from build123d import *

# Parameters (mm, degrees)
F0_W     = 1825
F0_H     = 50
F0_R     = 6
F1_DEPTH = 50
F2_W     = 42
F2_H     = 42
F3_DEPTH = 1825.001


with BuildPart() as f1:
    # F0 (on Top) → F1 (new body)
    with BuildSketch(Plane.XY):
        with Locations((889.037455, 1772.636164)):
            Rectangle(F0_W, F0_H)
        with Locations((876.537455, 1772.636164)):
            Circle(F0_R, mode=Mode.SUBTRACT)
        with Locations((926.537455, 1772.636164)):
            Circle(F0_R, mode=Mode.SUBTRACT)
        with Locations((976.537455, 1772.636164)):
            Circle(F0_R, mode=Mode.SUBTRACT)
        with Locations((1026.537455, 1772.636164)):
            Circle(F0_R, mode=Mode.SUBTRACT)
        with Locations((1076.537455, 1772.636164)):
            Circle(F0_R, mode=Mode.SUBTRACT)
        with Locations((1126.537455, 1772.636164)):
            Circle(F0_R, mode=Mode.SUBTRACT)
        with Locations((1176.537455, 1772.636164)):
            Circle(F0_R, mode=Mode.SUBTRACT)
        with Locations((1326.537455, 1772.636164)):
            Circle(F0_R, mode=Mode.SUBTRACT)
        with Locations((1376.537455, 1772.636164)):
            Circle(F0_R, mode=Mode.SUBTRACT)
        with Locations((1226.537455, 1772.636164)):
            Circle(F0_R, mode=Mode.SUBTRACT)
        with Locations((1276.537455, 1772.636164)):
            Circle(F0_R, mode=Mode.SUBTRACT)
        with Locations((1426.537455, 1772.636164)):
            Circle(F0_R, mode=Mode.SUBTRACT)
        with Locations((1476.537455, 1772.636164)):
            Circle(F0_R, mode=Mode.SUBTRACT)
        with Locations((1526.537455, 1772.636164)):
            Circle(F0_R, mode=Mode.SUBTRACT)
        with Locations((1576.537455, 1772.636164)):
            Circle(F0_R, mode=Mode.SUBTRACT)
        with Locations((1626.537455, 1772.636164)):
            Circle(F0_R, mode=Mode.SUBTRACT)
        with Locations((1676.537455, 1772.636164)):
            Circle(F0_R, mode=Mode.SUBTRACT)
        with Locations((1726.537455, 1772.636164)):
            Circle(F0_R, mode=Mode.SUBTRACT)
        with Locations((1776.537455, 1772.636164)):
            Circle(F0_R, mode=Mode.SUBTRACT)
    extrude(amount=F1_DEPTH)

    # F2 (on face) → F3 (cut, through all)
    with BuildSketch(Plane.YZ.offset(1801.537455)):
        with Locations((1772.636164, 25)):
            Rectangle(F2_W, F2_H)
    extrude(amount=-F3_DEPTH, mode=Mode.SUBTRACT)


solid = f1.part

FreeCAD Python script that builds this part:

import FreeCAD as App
import Part
import Sketcher

doc = App.newDocument("Part")
params = doc.addObject("Spreadsheet::Sheet", "Params")
for row, (alias, value) in enumerate([
    ("sketch1_diameter", "12 mm"),
    ("sketch1_width", "1825 mm"),
    ("sketch1_height", "50 mm"),
    ("pad1_length", "50 mm"),
    ("sketch2_width", "42 mm"),
], start=1):
    params.set(f"A{row}", alias)
    params.set(f"B{row}", "=" + value)
    params.setAlias(f"B{row}", alias)

body = doc.addObject("PartDesign::Body", "Body")

sketch1 = doc.addObject("Sketcher::SketchObject", "Sketch")
body.addObject(sketch1)
sketch1.AttachmentSupport = (doc.XY_Plane, [""])
sketch1.MapMode = "FlatFace"
sketch1.addGeometry([
    Part.LineSegment(App.Vector(-23, 1798, 0), App.Vector(-23, 1748, 0)),
    Part.LineSegment(App.Vector(-23, 1748, 0), App.Vector(1802, 1748, 0)),
    Part.LineSegment(App.Vector(1802, 1748, 0), App.Vector(1802, 1798, 0)),
    Part.LineSegment(App.Vector(1802, 1798, 0), App.Vector(-23, 1798, 0)),
    Part.Circle(App.Vector(877, 1773, 0), App.Vector(0, 0, 1), 6),
    Part.Circle(App.Vector(927, 1773, 0), App.Vector(0, 0, 1), 6),
    Part.Circle(App.Vector(977, 1773, 0), App.Vector(0, 0, 1), 6),
    Part.Circle(App.Vector(1027, 1773, 0), App.Vector(0, 0, 1), 6),
    Part.Circle(App.Vector(1077, 1773, 0), App.Vector(0, 0, 1), 6),
    Part.Circle(App.Vector(1127, 1773, 0), App.Vector(0, 0, 1), 6),
    Part.Circle(App.Vector(1177, 1773, 0), App.Vector(0, 0, 1), 6),
    Part.Circle(App.Vector(1227, 1773, 0), App.Vector(0, 0, 1), 6),
    Part.Circle(App.Vector(1277, 1773, 0), App.Vector(0, 0, 1), 6),
    Part.Circle(App.Vector(1327, 1773, 0), App.Vector(0, 0, 1), 6),
    Part.Circle(App.Vector(1377, 1773, 0), App.Vector(0, 0, 1), 6),
    Part.Circle(App.Vector(1427, 1773, 0), App.Vector(0, 0, 1), 6),
    Part.Circle(App.Vector(1477, 1773, 0), App.Vector(0, 0, 1), 6),
    Part.Circle(App.Vector(1527, 1773, 0), App.Vector(0, 0, 1), 6),
    Part.Circle(App.Vector(1577, 1773, 0), App.Vector(0, 0, 1), 6),
    Part.Circle(App.Vector(1627, 1773, 0), App.Vector(0, 0, 1), 6),
    Part.Circle(App.Vector(1677, 1773, 0), App.Vector(0, 0, 1), 6),
    Part.Circle(App.Vector(1727, 1773, 0), App.Vector(0, 0, 1), 6),
    Part.Circle(App.Vector(1777, 1773, 0), App.Vector(0, 0, 1), 6),
], False)
sketch1.addConstraint([
    Sketcher.Constraint("Coincident", 0, 2, 1, 1),
    Sketcher.Constraint("Coincident", 1, 2, 2, 1),
    Sketcher.Constraint("Coincident", 2, 2, 3, 1),
    Sketcher.Constraint("Coincident", 3, 2, 0, 1),
    Sketcher.Constraint("Vertical", 0),
    Sketcher.Constraint("Horizontal", 1),
    Sketcher.Constraint("Vertical", 2),
    Sketcher.Constraint("Horizontal", 3),
    Sketcher.Constraint("Equal", 4, 5),
    Sketcher.Constraint("Equal", 5, 6),
    Sketcher.Constraint("Equal", 6, 7),
    Sketcher.Constraint("Equal", 7, 8),
    Sketcher.Constraint("Equal", 8, 9),
    Sketcher.Constraint("Equal", 9, 10),
    Sketcher.Constraint("Equal", 10, 11),
    Sketcher.Constraint("Equal", 11, 12),
    Sketcher.Constraint("Equal", 12, 13),
    Sketcher.Constraint("Equal", 13, 14),
    Sketcher.Constraint("Equal", 14, 15),
    Sketcher.Constraint("Equal", 15, 16),
    Sketcher.Constraint("Equal", 16, 17),
    Sketcher.Constraint("Equal", 17, 18),
    Sketcher.Constraint("Equal", 18, 19),
    Sketcher.Constraint("Equal", 19, 20),
    Sketcher.Constraint("Equal", 20, 21),
    Sketcher.Constraint("Equal", 21, 22),
    Sketcher.Constraint("Horizontal", 4, 3, 5, 3),
    Sketcher.Constraint("Horizontal", 5, 3, 6, 3),
    Sketcher.Constraint("Horizontal", 6, 3, 7, 3),
    Sketcher.Constraint("Horizontal", 7, 3, 8, 3),
    Sketcher.Constraint("Horizontal", 8, 3, 9, 3),
    Sketcher.Constraint("Horizontal", 9, 3, 10, 3),
    Sketcher.Constraint("Horizontal", 10, 3, 11, 3),
    Sketcher.Constraint("Horizontal", 11, 3, 12, 3),
    Sketcher.Constraint("Horizontal", 12, 3, 13, 3),
    Sketcher.Constraint("Horizontal", 13, 3, 14, 3),
    Sketcher.Constraint("Horizontal", 14, 3, 15, 3),
    Sketcher.Constraint("Horizontal", 15, 3, 16, 3),
    Sketcher.Constraint("Horizontal", 16, 3, 17, 3),
    Sketcher.Constraint("Horizontal", 17, 3, 18, 3),
    Sketcher.Constraint("Horizontal", 18, 3, 19, 3),
    Sketcher.Constraint("Horizontal", 19, 3, 20, 3),
    Sketcher.Constraint("Horizontal", 20, 3, 21, 3),
    Sketcher.Constraint("Horizontal", 21, 3, 22, 3),
    Sketcher.Constraint("Diameter", 4, 12.0),
    Sketcher.Constraint("DistanceX", 1, 1, 1, 2, 1825.0),
    Sketcher.Constraint("DistanceY", 0, 2, 0, 1, 50.0),
    Sketcher.Constraint("DistanceX", 4, 3, 5, 3, 50.0),
    Sketcher.Constraint("DistanceX", 5, 3, 6, 3, 50.0),
    Sketcher.Constraint("DistanceX", 6, 3, 7, 3, 50.0),
    Sketcher.Constraint("DistanceX", 7, 3, 8, 3, 50.0),
    Sketcher.Constraint("DistanceX", 8, 3, 9, 3, 50.0),
    Sketcher.Constraint("DistanceX", 9, 3, 10, 3, 50.0),
    Sketcher.Constraint("DistanceX", 10, 3, 11, 3, 50.0),
    Sketcher.Constraint("DistanceX", 11, 3, 12, 3, 50.0),
    Sketcher.Constraint("DistanceX", 12, 3, 13, 3, 50.0),
    Sketcher.Constraint("DistanceX", 13, 3, 14, 3, 50.0),
    Sketcher.Constraint("DistanceX", 14, 3, 15, 3, 50.0),
    Sketcher.Constraint("DistanceX", 15, 3, 16, 3, 50.0),
    Sketcher.Constraint("DistanceX", 16, 3, 17, 3, 50.0),
    Sketcher.Constraint("DistanceX", 17, 3, 18, 3, 50.0),
    Sketcher.Constraint("DistanceX", 18, 3, 19, 3, 50.0),
    Sketcher.Constraint("DistanceX", 19, 3, 20, 3, 50.0),
    Sketcher.Constraint("DistanceX", 20, 3, 21, 3, 50.0),
    Sketcher.Constraint("DistanceX", 21, 3, 22, 3, 50.0),
    Sketcher.Constraint("DistanceX", 0, 2, 4, 3, 900.0),
    Sketcher.Constraint("DistanceY", 0, 2, 4, 3, 25.0),
    Sketcher.Constraint("DistanceX", -1, 1, 4, 3, 876.537455),
    Sketcher.Constraint("DistanceY", -1, 1, 4, 3, 1772.636164),
])
sketch1.setExpression("Constraints[44]", "Params.sketch1_diameter")
sketch1.setExpression("Constraints[45]", "Params.sketch1_width")
sketch1.setExpression("Constraints[46]", "Params.sketch1_height")
pad1 = doc.addObject("PartDesign::Pad", "Pad")
body.addObject(pad1)
pad1.Profile = sketch1
pad1.setExpression("Length", "Params.pad1_length")

sketch2 = doc.addObject("Sketcher::SketchObject", "Sketch001")
body.addObject(sketch2)
sketch2.AttachmentSupport = (doc.YZ_Plane, [""])
sketch2.MapMode = "FlatFace"
sketch2.AttachmentOffset = App.Placement(App.Vector(0, 0, 1801.537455), App.Rotation())
sketch2.addGeometry([
    Part.LineSegment(App.Vector(1752, 46, 0), App.Vector(1752, 4, 0)),
    Part.LineSegment(App.Vector(1752, 4, 0), App.Vector(1794, 4, 0)),
    Part.LineSegment(App.Vector(1794, 4, 0), App.Vector(1794, 46, 0)),
    Part.LineSegment(App.Vector(1794, 46, 0), App.Vector(1752, 46, 0)),
], False)
sketch2.addConstraint([
    Sketcher.Constraint("Coincident", 0, 2, 1, 1),
    Sketcher.Constraint("Coincident", 1, 2, 2, 1),
    Sketcher.Constraint("Coincident", 2, 2, 3, 1),
    Sketcher.Constraint("Coincident", 3, 2, 0, 1),
    Sketcher.Constraint("Vertical", 0),
    Sketcher.Constraint("Horizontal", 1),
    Sketcher.Constraint("Vertical", 2),
    Sketcher.Constraint("Horizontal", 3),
    Sketcher.Constraint("Equal", 3, 0),
    Sketcher.Constraint("DistanceX", 1, 1, 1, 2, 42.0),
    Sketcher.Constraint("DistanceY", -1, 1, 0, 2, 4.0),
    Sketcher.Constraint("DistanceX", -1, 1, 0, 2, 1751.636164),
])
sketch2.setExpression("Constraints[9]", "Params.sketch2_width")
pocket1 = doc.addObject("PartDesign::Pocket", "Pocket")
body.addObject(pocket1)
pocket1.Profile = sketch2
pocket1.Type = "ThroughAll"

doc.recompute()
